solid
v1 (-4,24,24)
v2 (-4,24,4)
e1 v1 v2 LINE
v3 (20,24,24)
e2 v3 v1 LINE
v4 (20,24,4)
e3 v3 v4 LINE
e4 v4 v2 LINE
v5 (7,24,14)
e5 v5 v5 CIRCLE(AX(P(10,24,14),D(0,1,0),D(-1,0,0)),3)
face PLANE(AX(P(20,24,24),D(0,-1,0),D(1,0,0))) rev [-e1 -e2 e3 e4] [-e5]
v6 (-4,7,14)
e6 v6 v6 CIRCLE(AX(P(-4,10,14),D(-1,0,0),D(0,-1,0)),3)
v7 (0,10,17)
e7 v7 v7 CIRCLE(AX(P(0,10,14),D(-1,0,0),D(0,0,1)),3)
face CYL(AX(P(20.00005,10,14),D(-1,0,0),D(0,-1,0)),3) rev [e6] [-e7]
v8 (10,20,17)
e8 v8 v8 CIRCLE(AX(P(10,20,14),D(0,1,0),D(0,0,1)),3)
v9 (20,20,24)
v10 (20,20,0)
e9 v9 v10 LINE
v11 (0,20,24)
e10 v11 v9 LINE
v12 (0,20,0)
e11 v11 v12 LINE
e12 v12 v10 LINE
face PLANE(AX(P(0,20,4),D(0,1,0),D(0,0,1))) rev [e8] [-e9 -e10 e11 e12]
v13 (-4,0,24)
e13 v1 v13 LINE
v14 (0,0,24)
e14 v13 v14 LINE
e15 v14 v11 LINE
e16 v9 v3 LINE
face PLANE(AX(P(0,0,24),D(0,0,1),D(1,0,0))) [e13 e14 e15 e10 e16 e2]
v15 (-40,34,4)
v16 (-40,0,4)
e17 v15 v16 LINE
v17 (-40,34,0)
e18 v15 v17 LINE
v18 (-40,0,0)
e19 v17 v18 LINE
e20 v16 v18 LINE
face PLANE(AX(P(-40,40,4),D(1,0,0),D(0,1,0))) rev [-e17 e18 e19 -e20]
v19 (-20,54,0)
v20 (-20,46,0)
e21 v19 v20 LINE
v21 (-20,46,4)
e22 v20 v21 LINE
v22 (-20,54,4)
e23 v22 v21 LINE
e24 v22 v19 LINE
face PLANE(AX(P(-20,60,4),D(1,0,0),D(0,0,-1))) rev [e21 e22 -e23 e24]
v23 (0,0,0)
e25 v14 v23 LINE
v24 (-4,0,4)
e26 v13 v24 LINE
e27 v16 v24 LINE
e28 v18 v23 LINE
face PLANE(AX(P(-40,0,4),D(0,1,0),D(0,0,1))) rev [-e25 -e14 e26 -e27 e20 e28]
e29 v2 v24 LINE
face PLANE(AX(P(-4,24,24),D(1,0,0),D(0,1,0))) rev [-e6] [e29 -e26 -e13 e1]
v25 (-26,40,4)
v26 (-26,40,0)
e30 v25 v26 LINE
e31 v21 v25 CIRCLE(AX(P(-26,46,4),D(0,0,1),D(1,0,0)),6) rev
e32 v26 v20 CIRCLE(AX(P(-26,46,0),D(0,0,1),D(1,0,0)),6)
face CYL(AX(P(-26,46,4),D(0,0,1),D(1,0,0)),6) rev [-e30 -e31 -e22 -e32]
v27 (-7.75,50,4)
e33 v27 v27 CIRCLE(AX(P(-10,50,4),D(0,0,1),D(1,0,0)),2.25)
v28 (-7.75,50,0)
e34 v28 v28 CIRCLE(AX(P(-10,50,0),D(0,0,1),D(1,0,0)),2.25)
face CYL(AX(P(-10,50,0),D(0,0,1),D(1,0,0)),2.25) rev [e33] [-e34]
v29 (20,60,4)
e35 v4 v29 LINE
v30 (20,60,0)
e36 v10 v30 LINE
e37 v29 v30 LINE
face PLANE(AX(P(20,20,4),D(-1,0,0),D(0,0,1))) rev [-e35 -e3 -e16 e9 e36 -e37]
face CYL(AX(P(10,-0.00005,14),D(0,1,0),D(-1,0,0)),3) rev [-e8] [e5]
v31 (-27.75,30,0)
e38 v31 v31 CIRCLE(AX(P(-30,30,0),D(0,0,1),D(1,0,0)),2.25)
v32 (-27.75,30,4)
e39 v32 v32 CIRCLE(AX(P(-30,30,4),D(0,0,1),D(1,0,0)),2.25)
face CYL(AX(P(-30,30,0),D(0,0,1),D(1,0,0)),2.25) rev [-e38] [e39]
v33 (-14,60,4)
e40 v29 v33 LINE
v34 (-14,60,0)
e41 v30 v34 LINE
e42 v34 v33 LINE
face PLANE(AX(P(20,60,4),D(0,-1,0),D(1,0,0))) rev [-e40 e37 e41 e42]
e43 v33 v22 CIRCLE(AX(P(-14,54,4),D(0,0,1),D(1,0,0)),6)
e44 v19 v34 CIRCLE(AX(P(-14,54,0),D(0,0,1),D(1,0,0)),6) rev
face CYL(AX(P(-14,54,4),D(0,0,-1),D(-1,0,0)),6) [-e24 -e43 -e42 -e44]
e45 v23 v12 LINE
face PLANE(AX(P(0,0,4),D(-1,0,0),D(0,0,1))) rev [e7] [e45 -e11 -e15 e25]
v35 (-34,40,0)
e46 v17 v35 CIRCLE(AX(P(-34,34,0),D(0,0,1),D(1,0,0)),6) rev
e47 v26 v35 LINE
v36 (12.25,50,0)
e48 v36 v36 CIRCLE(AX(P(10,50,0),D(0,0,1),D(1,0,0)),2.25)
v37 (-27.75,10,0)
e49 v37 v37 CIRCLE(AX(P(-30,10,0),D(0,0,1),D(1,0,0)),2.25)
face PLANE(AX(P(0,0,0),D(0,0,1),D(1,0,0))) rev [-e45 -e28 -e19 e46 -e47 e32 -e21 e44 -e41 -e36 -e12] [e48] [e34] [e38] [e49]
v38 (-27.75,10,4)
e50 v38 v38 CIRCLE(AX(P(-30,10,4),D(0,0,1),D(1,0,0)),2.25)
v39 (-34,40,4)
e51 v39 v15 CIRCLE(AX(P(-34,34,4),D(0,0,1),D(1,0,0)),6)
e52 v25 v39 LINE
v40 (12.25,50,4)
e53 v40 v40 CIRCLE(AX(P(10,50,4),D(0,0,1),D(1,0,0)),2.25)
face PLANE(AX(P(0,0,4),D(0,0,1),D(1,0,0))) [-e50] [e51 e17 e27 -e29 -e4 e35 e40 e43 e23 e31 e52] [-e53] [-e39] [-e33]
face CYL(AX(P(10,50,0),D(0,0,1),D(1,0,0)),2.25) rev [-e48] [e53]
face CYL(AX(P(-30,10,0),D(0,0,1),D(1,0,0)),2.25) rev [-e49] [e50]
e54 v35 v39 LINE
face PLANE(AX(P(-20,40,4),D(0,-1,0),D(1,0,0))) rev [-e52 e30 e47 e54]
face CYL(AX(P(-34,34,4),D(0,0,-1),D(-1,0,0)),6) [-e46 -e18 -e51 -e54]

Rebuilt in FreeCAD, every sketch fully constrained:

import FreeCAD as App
import Part
import Sketcher
Q = App.Units.Quantity


def edges_at(feature, points):
    """Names of the edges that pass closest to the given points."""
    edges = feature.Shape.Edges
    near = lambda p: min(range(len(edges)), key=lambda i: edges[i].distToShape(Part.Vertex(*p))[0])
    return sorted({f"Edge{near(p) + 1}" for p in points})

doc = App.newDocument("Part")
params = doc.addObject("Spreadsheet::Sheet", "Params")
for row, (alias, value) in enumerate([
    ("sketch1_width", "20 mm"),
    ("sketch1_width2", "40 mm"),
    ("pad1_length", "4 mm"),
    ("sketch2_width", "24 mm"),
    ("sketch2_width2", "4 mm"),
    ("pad2_length", "20 mm"),
    ("sketch3_diameter", "6 mm"),
    ("sketch4_diameter", "6 mm"),
    ("sketch5_diameter", "4.5 mm"),
    ("fillet_radius", "6 mm"),
], start=1):
    params.set(f"A{row}", alias)
    params.set(f"B{row}", "=" + value)
    params.setAlias(f"B{row}", alias)

body = doc.addObject("PartDesign::Body", "Body")

# Sketch on XY plane
sketch1 = body.newObject("Sketcher::SketchObject", "Sketch")
sketch1.AttachmentSupport = (doc.getObject("XY_Plane"), [""])
sketch1.MapMode = "FlatFace"
sketch1.addGeometry([
    Part.LineSegment(App.Vector(-20, 60, 0), App.Vector(-20, 40, 0)),  # 0
    Part.LineSegment(App.Vector(-20, 40, 0), App.Vector(-40, 40, 0)),  # 1
    Part.LineSegment(App.Vector(-40, 40, 0), App.Vector(-40, 0, 0)),  # 2
    Part.LineSegment(App.Vector(-40, 0, 0), App.Vector(0, 0, 0)),  # 3
    Part.LineSegment(App.Vector(0, 0, 0), App.Vector(0, 20, 0)),  # 4
    Part.LineSegment(App.Vector(0, 20, 0), App.Vector(20, 20, 0)),  # 5
    Part.LineSegment(App.Vector(20, 20, 0), App.Vector(20, 60, 0)),  # 6
    Part.LineSegment(App.Vector(20, 60, 0), App.Vector(-20, 60, 0)),  # 7
], False)
sketch1.addConstraint([
    Sketcher.Constraint("Coincident", 0, 2, 1, 1),
    Sketcher.Constraint("Coincident", 1, 2, 2, 1),
    Sketcher.Constraint("Coincident", 2, 2, 3, 1),
    Sketcher.Constraint("Coincident", 3, 2, 4, 1),
    Sketcher.Constraint("Coincident", 4, 2, 5, 1),
    Sketcher.Constraint("Coincident", 5, 2, 6, 1),
    Sketcher.Constraint("Coincident", 6, 2, 7, 1),
    Sketcher.Constraint("Coincident", 7, 2, 0, 1),
    Sketcher.Constraint("Vertical", 0),
    Sketcher.Constraint("Horizontal", 1),
    Sketcher.Constraint("Vertical", 2),
    Sketcher.Constraint("Horizontal", 3),
    Sketcher.Constraint("Vertical", 4),
    Sketcher.Constraint("Horizontal", 5),
    Sketcher.Constraint("Vertical", 6),
    Sketcher.Constraint("Horizontal", 7),
    Sketcher.Constraint("Coincident", 3, 2, -1, 1),
    Sketcher.Constraint("Equal", 1, 5),
    Sketcher.Constraint("Equal", 5, 0),
    Sketcher.Constraint("Equal", 7, 2),
    Sketcher.Constraint("Equal", 0, 4),
    Sketcher.Constraint("DistanceX", 1, 2, 1, 1, Q("20 mm")),
    Sketcher.Constraint("DistanceX", 3, 1, 3, 2, Q("40 mm")),
])
sketch1.setExpression("Constraints[21]", "Params.sketch1_width")
sketch1.setExpression("Constraints[22]", "Params.sketch1_width2")
pad1 = body.newObject("PartDesign::Pad", "Pad")
pad1.Profile = sketch1
pad1.setExpression("Length", "Params.pad1_length")

# Sketch on XY plane
sketch2 = body.newObject("Sketcher::SketchObject", "Sketch001")
sketch2.AttachmentSupport = (doc.getObject("XY_Plane"), [""])
sketch2.MapMode = "FlatFace"
sketch2.AttachmentOffset = App.Placement(App.Vector(0, 0, 4), App.Rotation())
sketch2.addGeometry([
    Part.LineSegment(App.Vector(20, 20, 0), App.Vector(20, 24, 0)),  # 0
    Part.LineSegment(App.Vector(20, 24, 0), App.Vector(-4, 24, 0)),  # 1
    Part.LineSegment(App.Vector(-4, 24, 0), App.Vector(-4, 0, 0)),  # 2
    Part.LineSegment(App.Vector(-4, 0, 0), App.Vector(0, 0, 0)),  # 3
    Part.LineSegment(App.Vector(0, 0, 0), App.Vector(0, 20, 0)),  # 4
    Part.LineSegment(App.Vector(0, 20, 0), App.Vector(20, 20, 0)),  # 5
], False)
sketch2.addConstraint([
    Sketcher.Constraint("Coincident", 0, 2, 1, 1),
    Sketcher.Constraint("Coincident", 1, 2, 2, 1),
    Sketcher.Constraint("Coincident", 2, 2, 3, 1),
    Sketcher.Constraint("Coincident", 3, 2, 4, 1),
    Sketcher.Constraint("Coincident", 4, 2, 5, 1),
    Sketcher.Constraint("Coincident", 5, 2, 0, 1),
    Sketcher.Constraint("Vertical", 0),
    Sketcher.Constraint("Horizontal", 1),
    Sketcher.Constraint("Vertical", 2),
    Sketcher.Constraint("Horizontal", 3),
    Sketcher.Constraint("Vertical", 4),
    Sketcher.Constraint("Horizontal", 5),
    Sketcher.Constraint("Coincident", 3, 2, -1, 1),
    Sketcher.Constraint("Equal", 3, 0),
    Sketcher.Constraint("Equal", 1, 2),
    Sketcher.Constraint("DistanceX", 1, 2, 1, 1, Q("24 mm")),
    Sketcher.Constraint("DistanceX", 3, 1, 3, 2, Q("4 mm")),
])
sketch2.setExpression("Constraints[15]", "Params.sketch2_width")
sketch2.setExpression("Constraints[16]", "Params.sketch2_width2")
pad2 = body.newObject("PartDesign::Pad", "Pad001")
pad2.Profile = sketch2
pad2.setExpression("Length", "Params.pad2_length")

# Sketch on YZ plane
sketch3 = body.newObject("Sketcher::SketchObject", "Sketch002")
sketch3.AttachmentSupport = (doc.getObject("YZ_Plane"), [""])
sketch3.MapMode = "FlatFace"
sketch3.AttachmentOffset = App.Placement(App.Vector(0, 0, -4), App.Rotation())
sketch3.addGeometry(Part.Circle(App.Vector(10, 14, 0), App.Vector(0, 0, 1), 3), False)
sketch3.addConstraint([
    Sketcher.Constraint("Diameter", 0, Q("6 mm")),
    Sketcher.Constraint("DistanceX", -1, 1, 0, 3, Q("10 mm")),
    Sketcher.Constraint("DistanceY", -1, 1, 0, 3, Q("14 mm")),
])
sketch3.setExpression("Constraints[0]", "Params.sketch3_diameter")
pocket1 = body.newObject("PartDesign::Pocket", "Pocket")
pocket1.Profile = sketch3
pocket1.Type = "ThroughAll"
pocket1.Reversed = True

# Sketch on XZ plane
sketch4 = body.newObject("Sketcher::SketchObject", "Sketch003")
sketch4.AttachmentSupport = (doc.getObject("XZ_Plane"), [""])
sketch4.MapMode = "FlatFace"
sketch4.AttachmentOffset = App.Placement(App.Vector(0, 0, -24), App.Rotation())
sketch4.addGeometry(Part.Circle(App.Vector(10, 14, 0), App.Vector(0, 0, 1), 3), False)
sketch4.addConstraint([
    Sketcher.Constraint("Diameter", 0, Q("6 mm")),
    Sketcher.Constraint("DistanceX", -1, 1, 0, 3, Q("10 mm")),
    Sketcher.Constraint("DistanceY", -1, 1, 0, 3, Q("14 mm")),
])
sketch4.setExpression("Constraints[0]", "Params.sketch4_diameter")
pocket2 = body.newObject("PartDesign::Pocket", "Pocket001")
pocket2.Profile = sketch4
pocket2.Type = "ThroughAll"
pocket2.Reversed = True

# Sketch on XY plane
sketch5 = body.newObject("Sketcher::SketchObject", "Sketch004")
sketch5.AttachmentSupport = (doc.getObject("XY_Plane"), [""])
sketch5.MapMode = "FlatFace"
sketch5.AttachmentOffset = App.Placement(App.Vector(0, 0, 4), App.Rotation())
sketch5.addGeometry([
    Part.Circle(App.Vector(10, 50, 0), App.Vector(0, 0, 1), 2.25),
    Part.Circle(App.Vector(-10, 50, 0), App.Vector(0, 0, 1), 2.25),
    Part.Circle(App.Vector(-30, 30, 0), App.Vector(0, 0, 1), 2.25),
    Part.Circle(App.Vector(-30, 10, 0), App.Vector(0, 0, 1), 2.25),
], False)
sketch5.addConstraint([
    Sketcher.Constraint("Equal", 0, 1),
    Sketcher.Constraint("Equal", 1, 2),
    Sketcher.Constraint("Equal", 2, 3),
    Sketcher.Constraint("Symmetric", 0, 3, 1, 3, -2),
    Sketcher.Constraint("Vertical", 2, 3, 3, 3),
    Sketcher.Constraint("Diameter", 0, Q("4.5 mm")),
    Sketcher.Constraint("DistanceX", -1, 1, 0, 3, Q("10 mm")),
    Sketcher.Constraint("DistanceY", -1, 1, 0, 3, Q("50 mm")),
    Sketcher.Constraint("DistanceX", 2, 3, -1, 1, Q("30 mm")),
    Sketcher.Constraint("DistanceY", -1, 1, 2, 3, Q("30 mm")),
    Sketcher.Constraint("DistanceY", -1, 1, 3, 3, Q("10 mm")),
])
sketch5.setExpression("Constraints[5]", "Params.sketch5_diameter")
pocket3 = body.newObject("PartDesign::Pocket", "Pocket002")
pocket3.Profile = sketch5
pocket3.Type = "ThroughAll"
doc.recompute()

fillet = body.newObject("PartDesign::Fillet", "Fillet")
fillet.Base = (pocket3, edges_at(pocket3, [(-40, 40, 2), (-20, 40, 2), (-20, 60, 2)]))
fillet.setExpression("Radius", "Params.fillet_radius")

doc.recompute()
